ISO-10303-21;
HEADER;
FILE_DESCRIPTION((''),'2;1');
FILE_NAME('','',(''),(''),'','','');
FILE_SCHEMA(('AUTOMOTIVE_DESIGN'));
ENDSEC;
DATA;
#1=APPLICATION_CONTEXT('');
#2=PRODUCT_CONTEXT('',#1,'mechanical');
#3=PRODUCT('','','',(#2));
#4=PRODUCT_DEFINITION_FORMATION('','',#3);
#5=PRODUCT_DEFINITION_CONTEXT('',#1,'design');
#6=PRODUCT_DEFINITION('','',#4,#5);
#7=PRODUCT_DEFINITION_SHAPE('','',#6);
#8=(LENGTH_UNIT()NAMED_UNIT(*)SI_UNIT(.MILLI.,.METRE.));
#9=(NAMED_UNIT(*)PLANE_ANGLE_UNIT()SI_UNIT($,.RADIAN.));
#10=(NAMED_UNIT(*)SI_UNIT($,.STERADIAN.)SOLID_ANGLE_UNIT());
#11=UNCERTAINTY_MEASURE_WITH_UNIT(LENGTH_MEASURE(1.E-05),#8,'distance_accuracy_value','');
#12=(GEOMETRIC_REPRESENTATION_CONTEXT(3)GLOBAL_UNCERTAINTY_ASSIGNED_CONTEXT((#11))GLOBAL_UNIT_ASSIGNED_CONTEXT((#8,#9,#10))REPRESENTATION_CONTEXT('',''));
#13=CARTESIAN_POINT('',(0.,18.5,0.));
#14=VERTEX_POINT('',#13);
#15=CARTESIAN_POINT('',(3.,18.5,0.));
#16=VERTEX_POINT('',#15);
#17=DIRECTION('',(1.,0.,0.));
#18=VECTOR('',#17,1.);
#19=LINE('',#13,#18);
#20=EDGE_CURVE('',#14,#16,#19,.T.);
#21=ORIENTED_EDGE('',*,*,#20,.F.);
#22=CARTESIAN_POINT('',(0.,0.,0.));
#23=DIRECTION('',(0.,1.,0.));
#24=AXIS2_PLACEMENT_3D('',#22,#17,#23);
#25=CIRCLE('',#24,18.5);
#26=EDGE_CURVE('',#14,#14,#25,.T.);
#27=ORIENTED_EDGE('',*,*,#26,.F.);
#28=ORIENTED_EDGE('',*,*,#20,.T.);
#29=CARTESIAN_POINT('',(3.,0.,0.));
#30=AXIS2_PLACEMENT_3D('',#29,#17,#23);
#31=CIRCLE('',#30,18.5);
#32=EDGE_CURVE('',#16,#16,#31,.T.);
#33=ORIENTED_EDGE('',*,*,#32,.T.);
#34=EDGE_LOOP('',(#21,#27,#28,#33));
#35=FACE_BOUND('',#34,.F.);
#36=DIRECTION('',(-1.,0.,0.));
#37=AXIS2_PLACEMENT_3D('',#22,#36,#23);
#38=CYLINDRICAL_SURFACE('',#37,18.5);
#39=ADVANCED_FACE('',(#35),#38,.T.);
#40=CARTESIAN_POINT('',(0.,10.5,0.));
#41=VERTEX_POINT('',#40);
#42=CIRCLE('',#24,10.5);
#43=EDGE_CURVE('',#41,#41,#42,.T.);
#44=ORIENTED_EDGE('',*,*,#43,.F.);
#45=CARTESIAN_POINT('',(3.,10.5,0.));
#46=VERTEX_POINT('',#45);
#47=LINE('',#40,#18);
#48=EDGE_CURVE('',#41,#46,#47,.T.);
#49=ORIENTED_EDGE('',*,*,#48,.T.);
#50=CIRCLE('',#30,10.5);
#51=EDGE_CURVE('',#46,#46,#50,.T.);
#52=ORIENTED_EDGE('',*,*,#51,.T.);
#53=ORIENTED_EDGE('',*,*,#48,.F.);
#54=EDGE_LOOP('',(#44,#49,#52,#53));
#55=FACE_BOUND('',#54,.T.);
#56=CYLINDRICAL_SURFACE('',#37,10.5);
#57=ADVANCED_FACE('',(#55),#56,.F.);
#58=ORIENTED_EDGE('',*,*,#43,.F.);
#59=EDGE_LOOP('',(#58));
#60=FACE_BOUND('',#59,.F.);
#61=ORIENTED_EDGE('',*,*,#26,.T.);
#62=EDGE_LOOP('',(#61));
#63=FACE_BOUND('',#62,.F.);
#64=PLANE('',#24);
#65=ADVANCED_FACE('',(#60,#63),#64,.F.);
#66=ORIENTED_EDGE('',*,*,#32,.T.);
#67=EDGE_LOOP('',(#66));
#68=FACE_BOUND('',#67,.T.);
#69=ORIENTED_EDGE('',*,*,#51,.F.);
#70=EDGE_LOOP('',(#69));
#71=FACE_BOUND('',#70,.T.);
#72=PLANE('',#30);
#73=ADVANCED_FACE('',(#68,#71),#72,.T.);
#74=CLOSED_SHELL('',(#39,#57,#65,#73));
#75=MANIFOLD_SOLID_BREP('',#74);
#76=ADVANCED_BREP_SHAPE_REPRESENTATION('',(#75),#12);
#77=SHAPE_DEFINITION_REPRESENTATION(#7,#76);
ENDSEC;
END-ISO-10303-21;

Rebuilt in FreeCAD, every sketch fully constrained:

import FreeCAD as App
import Part
import Sketcher

doc = App.newDocument("Part")
body = doc.addObject("PartDesign::Body", "Body")

# Sketch on YZ plane
sketch1 = body.newObject("Sketcher::SketchObject", "Sketch")
sketch1.AttachmentSupport = (doc.getObject("YZ_Plane"), [""])
sketch1.MapMode = "FlatFace"
sketch1.addGeometry(Part.Circle(App.Vector(0, 0, 0), App.Vector(0, 0, 1), 18.5), False)
sketch1.addGeometry(Part.Circle(App.Vector(0, 0, 0), App.Vector(0, 0, 1), 10.5), False)
sketch1.addConstraint(Sketcher.Constraint("Coincident", 0, 3, -1, 1))
sketch1.addConstraint(Sketcher.Constraint("Coincident", 1, 3, -1, 1))
sketch1.addConstraint(Sketcher.Constraint("Diameter", 0, 37.0))
sketch1.addConstraint(Sketcher.Constraint("Diameter", 1, 21.0))
pad1 = body.newObject("PartDesign::Pad", "Pad")
pad1.Profile = sketch1
pad1.Length = 3

doc.recompute()
